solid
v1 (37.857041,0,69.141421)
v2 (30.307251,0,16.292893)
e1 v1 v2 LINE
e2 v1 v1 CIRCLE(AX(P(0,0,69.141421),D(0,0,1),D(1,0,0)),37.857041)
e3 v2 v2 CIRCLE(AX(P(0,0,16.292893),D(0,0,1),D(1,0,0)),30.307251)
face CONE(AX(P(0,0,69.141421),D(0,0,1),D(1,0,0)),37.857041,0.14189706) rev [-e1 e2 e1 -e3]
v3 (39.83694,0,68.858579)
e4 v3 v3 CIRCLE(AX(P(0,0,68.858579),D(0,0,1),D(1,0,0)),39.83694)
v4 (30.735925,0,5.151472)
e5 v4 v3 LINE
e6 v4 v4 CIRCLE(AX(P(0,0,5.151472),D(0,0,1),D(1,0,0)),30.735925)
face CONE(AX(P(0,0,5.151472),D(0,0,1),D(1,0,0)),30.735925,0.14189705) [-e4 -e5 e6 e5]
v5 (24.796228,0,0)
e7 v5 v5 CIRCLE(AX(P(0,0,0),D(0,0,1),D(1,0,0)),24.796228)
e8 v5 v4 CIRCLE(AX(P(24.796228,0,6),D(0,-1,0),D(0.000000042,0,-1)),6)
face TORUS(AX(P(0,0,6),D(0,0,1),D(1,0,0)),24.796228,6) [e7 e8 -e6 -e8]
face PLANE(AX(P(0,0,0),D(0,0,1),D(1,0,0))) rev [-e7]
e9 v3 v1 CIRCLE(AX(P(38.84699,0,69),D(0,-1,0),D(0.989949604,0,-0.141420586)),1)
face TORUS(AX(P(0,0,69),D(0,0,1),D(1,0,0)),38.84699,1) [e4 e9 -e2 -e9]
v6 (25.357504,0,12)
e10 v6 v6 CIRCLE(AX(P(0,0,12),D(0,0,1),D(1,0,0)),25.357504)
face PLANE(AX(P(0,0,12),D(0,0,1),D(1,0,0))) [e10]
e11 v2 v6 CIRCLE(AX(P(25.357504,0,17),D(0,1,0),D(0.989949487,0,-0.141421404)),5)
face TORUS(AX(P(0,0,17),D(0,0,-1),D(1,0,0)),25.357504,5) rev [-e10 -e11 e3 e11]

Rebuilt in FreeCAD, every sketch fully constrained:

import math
import FreeCAD as App
import Part
import Sketcher

doc = App.newDocument("Part")
body = doc.addObject("PartDesign::Body", "Body")

# Sketch on XZ plane
sketch1 = body.newObject("Sketcher::SketchObject", "Sketch")
sketch1.AttachmentSupport = (doc.getObject("XZ_Plane"), [""])
sketch1.MapMode = "FlatFace"
sketch1.addGeometry([
    Part.LineSegment(App.Vector(0, 12, 0), App.Vector(0, 0, 0)),  # 0
    Part.LineSegment(App.Vector(0, 0, 0), App.Vector(24.8, 0, 0)),  # 1
    Part.ArcOfCircle(Part.Circle(App.Vector(24.8, 6, 0), App.Vector(0, 0, 1), 6), math.radians(-90), math.radians(-8)),  # 2
    Part.LineSegment(App.Vector(30.7, 5.2, 0), App.Vector(39.8, 68.9, 0)),  # 3
    Part.ArcOfCircle(Part.Circle(App.Vector(38.8, 69, 0), App.Vector(0, 0, 1), 1), math.radians(-8), math.radians(172)),  # 4
    Part.LineSegment(App.Vector(37.9, 69.1, 0), App.Vector(30.3, 16.3, 0)),  # 5
    Part.ArcOfCircle(Part.Circle(App.Vector(25.4, 17, 0), App.Vector(0, 0, 1), 5), math.radians(-90), math.radians(-8)),  # 6
    Part.LineSegment(App.Vector(25.4, 12, 0), App.Vector(0, 12, 0)),  # 7
], False)
sketch1.addConstraint([
    Sketcher.Constraint("Coincident", 0, 2, 1, 1),
    Sketcher.Constraint("Tangent", 1, 2, 2, 1),
    Sketcher.Constraint("Tangent", 2, 2, 3, 1),
    Sketcher.Constraint("Tangent", 3, 2, 4, 1),
    Sketcher.Constraint("Tangent", 4, 2, 5, 1),
    Sketcher.Constraint("Tangent", 5, 2, 6, 2),
    Sketcher.Constraint("Tangent", 6, 1, 7, 1),
    Sketcher.Constraint("Coincident", 7, 2, 0, 1),
    Sketcher.Constraint("Vertical", 0),
    Sketcher.Constraint("Horizontal", 1),
    Sketcher.Constraint("Horizontal", 7),
    Sketcher.Constraint("Coincident", 0, 2, -1, 1),
    Sketcher.Constraint("Parallel", 3, 5),
    Sketcher.Constraint("Radius", 2, 6.0),
    Sketcher.Constraint("Radius", 4, 1.0),
    Sketcher.Constraint("Radius", 6, 5.0),
    Sketcher.Constraint("DistanceY", 0, 2, 0, 1, 12.0),
    Sketcher.Constraint("DistanceY", -1, 1, 4, 3, 69.0),
    Sketcher.Constraint("DistanceX", 1, 1, 1, 2, 24.796228),
    Sketcher.Constraint("DistanceX", 7, 2, 7, 1, 25.357504),
])
revolution = body.newObject("PartDesign::Revolution", "Revolution")
revolution.Profile = sketch1
revolution.ReferenceAxis = (sketch1, ["V_Axis"])
revolution.Angle = 360

doc.recompute()
